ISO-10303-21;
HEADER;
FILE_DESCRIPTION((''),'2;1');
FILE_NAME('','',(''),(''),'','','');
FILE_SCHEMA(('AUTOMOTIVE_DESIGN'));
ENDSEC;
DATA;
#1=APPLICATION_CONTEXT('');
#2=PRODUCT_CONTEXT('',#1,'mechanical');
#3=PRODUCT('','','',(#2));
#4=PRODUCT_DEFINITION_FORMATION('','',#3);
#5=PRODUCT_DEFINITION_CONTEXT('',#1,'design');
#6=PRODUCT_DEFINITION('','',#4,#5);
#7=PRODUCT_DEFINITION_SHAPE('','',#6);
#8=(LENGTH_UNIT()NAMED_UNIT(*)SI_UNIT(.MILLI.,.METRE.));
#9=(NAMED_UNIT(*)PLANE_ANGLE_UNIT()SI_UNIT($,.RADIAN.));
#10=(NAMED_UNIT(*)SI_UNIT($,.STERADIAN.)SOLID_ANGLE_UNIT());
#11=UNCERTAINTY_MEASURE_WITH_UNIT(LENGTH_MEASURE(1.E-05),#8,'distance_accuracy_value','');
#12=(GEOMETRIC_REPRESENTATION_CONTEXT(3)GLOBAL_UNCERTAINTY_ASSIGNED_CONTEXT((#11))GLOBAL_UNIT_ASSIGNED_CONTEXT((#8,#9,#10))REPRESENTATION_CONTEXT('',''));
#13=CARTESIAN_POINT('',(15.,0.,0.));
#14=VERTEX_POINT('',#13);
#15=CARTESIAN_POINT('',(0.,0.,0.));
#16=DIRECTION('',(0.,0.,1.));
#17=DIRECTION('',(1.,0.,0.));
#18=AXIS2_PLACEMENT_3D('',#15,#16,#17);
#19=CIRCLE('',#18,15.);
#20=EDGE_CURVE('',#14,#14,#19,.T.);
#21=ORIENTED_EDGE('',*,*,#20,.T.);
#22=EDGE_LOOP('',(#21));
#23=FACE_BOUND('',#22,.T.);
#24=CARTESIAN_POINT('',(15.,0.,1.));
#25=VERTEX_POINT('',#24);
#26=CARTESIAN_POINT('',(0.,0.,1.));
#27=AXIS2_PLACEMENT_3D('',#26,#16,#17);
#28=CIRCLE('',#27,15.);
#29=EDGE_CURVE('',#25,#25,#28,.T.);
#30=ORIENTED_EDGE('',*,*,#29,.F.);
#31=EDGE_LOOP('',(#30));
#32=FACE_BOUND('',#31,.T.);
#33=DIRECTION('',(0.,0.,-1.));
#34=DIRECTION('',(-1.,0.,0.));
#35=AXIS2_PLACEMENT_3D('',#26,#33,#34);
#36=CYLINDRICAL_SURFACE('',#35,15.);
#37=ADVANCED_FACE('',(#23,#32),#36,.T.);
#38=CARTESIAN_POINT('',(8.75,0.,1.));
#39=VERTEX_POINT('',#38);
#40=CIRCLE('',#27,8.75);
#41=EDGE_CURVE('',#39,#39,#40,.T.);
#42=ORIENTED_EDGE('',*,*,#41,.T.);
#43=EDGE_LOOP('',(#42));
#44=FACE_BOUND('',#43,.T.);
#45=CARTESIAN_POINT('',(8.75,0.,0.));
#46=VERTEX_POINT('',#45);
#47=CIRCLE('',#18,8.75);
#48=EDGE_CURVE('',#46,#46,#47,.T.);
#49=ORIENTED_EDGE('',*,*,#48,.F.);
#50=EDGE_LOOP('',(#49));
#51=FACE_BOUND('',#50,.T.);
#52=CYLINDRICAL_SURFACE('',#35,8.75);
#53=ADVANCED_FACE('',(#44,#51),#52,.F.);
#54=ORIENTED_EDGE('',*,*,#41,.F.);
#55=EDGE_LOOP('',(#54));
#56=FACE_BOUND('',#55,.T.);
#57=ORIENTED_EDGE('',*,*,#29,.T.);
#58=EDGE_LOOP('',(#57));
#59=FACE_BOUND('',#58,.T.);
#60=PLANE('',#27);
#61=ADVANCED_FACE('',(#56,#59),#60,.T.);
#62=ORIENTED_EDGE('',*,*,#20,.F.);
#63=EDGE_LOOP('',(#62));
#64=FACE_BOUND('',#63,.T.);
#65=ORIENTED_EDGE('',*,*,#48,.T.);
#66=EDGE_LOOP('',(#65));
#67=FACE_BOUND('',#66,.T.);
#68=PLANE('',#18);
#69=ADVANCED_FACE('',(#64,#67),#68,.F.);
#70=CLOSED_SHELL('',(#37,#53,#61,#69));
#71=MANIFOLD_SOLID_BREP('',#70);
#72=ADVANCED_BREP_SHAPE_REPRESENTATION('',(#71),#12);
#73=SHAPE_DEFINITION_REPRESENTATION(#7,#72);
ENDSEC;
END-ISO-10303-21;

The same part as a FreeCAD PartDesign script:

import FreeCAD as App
import Part
import Sketcher
from FreeCAD import Vector
Q = App.Units.Quantity

doc = App.newDocument("Part")
body = doc.addObject("PartDesign::Body", "Body")

sketch1 = doc.addObject("Sketcher::SketchObject", "Sketch")
body.addObject(sketch1)
sketch1.AttachmentSupport = (doc.XY_Plane, [""])
sketch1.MapMode = "FlatFace"
sketch1.addGeometry([
    Part.Circle(Vector(0, 0, 0), Vector(0, 0, 1), 15),
    Part.Circle(Vector(0, 0, 0), Vector(0, 0, 1), 8.75),
], False)
sketch1.addConstraint([
    Sketcher.Constraint("Coincident", 0, 3, -1, 1),
    Sketcher.Constraint("Coincident", 1, 3, -1, 1),
    Sketcher.Constraint("Diameter", 0, Q("30 mm")),
    Sketcher.Constraint("Diameter", 1, Q("17.5 mm")),
])
pad1 = doc.addObject("PartDesign::Pad", "Pad")
body.addObject(pad1)
pad1.Profile = sketch1
pad1.Length = 1

doc.recompute()
